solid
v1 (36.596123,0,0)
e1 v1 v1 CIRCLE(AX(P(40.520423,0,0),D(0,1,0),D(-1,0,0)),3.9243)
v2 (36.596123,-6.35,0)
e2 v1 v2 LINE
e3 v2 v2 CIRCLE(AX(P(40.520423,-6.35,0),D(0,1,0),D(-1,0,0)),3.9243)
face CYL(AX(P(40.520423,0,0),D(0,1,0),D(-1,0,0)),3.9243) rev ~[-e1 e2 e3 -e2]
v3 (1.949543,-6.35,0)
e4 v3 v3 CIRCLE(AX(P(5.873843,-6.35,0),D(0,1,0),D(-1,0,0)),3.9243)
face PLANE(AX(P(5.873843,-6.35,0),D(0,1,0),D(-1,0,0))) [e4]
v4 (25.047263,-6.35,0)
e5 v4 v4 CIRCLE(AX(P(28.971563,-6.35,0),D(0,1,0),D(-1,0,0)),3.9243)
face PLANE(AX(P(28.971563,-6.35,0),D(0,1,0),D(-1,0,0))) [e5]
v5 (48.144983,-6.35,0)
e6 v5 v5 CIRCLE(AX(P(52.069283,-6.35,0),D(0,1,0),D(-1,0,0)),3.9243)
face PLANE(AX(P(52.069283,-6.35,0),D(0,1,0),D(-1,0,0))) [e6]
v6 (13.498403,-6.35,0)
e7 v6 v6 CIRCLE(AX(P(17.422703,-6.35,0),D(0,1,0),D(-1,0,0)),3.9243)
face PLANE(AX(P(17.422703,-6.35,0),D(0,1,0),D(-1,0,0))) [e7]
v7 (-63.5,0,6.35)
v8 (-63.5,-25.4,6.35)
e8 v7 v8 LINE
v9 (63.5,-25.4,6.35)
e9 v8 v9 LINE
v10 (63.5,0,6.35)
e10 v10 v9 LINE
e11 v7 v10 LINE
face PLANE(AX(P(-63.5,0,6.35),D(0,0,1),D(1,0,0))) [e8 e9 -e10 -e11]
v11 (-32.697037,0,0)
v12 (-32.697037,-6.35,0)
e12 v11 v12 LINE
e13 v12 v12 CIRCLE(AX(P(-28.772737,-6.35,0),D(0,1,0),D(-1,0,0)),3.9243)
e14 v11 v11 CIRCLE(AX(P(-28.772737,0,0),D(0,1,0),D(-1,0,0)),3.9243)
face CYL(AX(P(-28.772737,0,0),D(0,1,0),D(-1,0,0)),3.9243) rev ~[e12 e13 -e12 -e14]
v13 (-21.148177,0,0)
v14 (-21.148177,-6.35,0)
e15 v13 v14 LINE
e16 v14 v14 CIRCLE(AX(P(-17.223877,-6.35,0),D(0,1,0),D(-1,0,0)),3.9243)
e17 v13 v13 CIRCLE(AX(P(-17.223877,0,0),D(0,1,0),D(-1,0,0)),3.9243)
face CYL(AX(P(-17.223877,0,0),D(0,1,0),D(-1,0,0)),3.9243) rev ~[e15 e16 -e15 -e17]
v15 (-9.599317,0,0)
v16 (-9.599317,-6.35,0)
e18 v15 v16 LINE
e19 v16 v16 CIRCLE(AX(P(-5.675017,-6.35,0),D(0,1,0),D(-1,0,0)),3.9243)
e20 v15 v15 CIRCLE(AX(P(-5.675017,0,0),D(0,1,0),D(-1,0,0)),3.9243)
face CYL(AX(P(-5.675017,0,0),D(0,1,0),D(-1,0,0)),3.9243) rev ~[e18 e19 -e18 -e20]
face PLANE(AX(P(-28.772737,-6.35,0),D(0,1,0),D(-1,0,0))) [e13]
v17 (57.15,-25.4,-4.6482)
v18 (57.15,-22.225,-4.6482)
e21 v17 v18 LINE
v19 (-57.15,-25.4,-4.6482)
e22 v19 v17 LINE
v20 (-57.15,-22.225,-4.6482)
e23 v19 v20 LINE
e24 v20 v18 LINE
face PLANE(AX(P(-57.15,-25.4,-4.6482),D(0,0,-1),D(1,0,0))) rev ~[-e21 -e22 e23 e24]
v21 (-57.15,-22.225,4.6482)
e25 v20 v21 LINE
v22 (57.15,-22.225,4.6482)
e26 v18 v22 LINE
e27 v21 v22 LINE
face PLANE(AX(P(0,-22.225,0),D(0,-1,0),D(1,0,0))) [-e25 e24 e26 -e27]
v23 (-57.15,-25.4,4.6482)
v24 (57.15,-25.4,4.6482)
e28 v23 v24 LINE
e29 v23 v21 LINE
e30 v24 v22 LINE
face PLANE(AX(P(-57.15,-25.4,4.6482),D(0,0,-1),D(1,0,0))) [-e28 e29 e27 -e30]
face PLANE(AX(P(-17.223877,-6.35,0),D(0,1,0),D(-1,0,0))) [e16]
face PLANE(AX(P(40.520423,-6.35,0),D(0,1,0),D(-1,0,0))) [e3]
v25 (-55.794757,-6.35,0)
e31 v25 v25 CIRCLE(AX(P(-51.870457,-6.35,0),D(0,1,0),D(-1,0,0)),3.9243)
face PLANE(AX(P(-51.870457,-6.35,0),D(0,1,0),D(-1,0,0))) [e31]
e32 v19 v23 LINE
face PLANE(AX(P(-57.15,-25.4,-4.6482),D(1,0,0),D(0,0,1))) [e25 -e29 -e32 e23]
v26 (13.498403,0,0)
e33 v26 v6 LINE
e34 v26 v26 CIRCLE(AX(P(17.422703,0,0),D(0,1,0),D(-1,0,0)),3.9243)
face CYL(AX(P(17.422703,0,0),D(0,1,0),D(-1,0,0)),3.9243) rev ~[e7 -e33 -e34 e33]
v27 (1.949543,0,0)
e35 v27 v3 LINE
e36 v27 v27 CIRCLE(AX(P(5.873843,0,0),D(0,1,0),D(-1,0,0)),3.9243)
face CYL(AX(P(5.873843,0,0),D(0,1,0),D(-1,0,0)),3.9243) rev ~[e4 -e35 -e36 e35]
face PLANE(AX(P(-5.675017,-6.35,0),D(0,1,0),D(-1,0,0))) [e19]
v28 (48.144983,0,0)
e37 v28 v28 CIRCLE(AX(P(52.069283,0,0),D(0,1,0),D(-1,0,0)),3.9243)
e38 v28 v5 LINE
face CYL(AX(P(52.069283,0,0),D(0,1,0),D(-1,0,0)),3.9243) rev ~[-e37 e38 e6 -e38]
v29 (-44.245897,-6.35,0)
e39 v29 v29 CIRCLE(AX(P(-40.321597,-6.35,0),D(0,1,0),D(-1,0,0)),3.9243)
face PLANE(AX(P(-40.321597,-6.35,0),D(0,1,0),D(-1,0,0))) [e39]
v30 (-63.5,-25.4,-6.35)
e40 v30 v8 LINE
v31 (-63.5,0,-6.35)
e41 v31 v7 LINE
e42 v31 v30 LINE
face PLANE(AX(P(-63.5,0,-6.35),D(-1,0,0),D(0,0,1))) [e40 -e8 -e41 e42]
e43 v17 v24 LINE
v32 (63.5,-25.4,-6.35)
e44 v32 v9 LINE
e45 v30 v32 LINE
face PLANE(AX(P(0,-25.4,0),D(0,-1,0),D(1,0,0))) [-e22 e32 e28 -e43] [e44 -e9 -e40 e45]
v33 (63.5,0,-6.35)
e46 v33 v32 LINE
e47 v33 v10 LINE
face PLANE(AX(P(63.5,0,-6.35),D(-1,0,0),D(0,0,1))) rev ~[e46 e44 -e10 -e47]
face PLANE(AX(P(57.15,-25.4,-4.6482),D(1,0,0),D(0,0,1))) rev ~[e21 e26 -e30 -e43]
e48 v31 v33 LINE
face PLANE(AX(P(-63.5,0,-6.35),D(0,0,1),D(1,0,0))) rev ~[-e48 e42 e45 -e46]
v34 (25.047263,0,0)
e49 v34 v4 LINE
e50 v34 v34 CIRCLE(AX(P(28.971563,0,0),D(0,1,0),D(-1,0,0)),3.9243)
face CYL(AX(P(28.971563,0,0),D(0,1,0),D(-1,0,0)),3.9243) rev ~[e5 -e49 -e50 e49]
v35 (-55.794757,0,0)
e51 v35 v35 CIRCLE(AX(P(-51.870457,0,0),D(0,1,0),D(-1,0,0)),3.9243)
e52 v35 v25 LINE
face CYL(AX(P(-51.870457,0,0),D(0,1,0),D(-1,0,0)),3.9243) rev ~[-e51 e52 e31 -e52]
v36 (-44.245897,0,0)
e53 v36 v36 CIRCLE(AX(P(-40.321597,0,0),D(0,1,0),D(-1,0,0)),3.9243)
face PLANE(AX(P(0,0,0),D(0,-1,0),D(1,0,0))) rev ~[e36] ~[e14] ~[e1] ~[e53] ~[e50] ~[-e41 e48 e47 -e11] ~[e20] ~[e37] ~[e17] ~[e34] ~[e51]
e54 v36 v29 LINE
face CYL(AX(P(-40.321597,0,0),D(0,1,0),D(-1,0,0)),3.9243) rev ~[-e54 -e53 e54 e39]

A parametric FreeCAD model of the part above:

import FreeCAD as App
import Part
import Sketcher
from FreeCAD import Vector
Q = App.Units.Quantity

doc = App.newDocument("Part")
body = doc.addObject("PartDesign::Body", "Body")

# Sketch on XZ plane
sketch1 = body.newObject("Sketcher::SketchObject", "Sketch")
sketch1.AttachmentSupport = (doc.getObject("XZ_Plane"), [""])
sketch1.MapMode = "FlatFace"
sketch1.addGeometry(Part.LineSegment(Vector(-63.5, 6.35, 0), Vector(-63.5, -6.35, 0)), False)
sketch1.addGeometry(Part.LineSegment(Vector(-63.5, -6.35, 0), Vector(63.5, -6.35, 0)), False)
sketch1.addGeometry(Part.LineSegment(Vector(63.5, -6.35, 0), Vector(63.5, 6.35, 0)), False)
sketch1.addGeometry(Part.LineSegment(Vector(63.5, 6.35, 0), Vector(-63.5, 6.35, 0)), False)
sketch1.addConstraint(Sketcher.Constraint("Coincident", 0, 2, 1, 1))
sketch1.addConstraint(Sketcher.Constraint("Coincident", 1, 2, 2, 1))
sketch1.addConstraint(Sketcher.Constraint("Coincident", 2, 2, 3, 1))
sketch1.addConstraint(Sketcher.Constraint("Coincident", 3, 2, 0, 1))
sketch1.addConstraint(Sketcher.Constraint("Vertical", 0))
sketch1.addConstraint(Sketcher.Constraint("Horizontal", 1))
sketch1.addConstraint(Sketcher.Constraint("Vertical", 2))
sketch1.addConstraint(Sketcher.Constraint("Horizontal", 3))
sketch1.addConstraint(Sketcher.Constraint("Symmetric", 0, 2, 2, 2, -1, 1))
sketch1.addConstraint(Sketcher.Constraint("DistanceX", 1, 1, 1, 2, Q("5 in")))
sketch1.addConstraint(Sketcher.Constraint("DistanceY", 0, 2, 0, 1, Q("0.5 in")))
pad1 = body.newObject("PartDesign::Pad", "Pad")
pad1.Profile = sketch1
pad1.Length = Q("1 in")

# Sketch on XZ plane
sketch2 = body.newObject("Sketcher::SketchObject", "Sketch001")
sketch2.AttachmentSupport = (doc.getObject("XZ_Plane"), [""])
sketch2.MapMode = "FlatFace"
sketch2.addGeometry(Part.Circle(Vector(-40.321597, 0, 0), Vector(0, 0, 1), 3.9243), False)
sketch2.addGeometry(Part.Circle(Vector(52.069283, 0, 0), Vector(0, 0, 1), 3.9243), False)
sketch2.addGeometry(Part.Circle(Vector(40.520423, 0, 0), Vector(0, 0, 1), 3.9243), False)
sketch2.addGeometry(Part.Circle(Vector(28.971563, 0, 0), Vector(0, 0, 1), 3.9243), False)
sketch2.addGeometry(Part.Circle(Vector(17.422703, 0, 0), Vector(0, 0, 1), 3.9243), False)
sketch2.addGeometry(Part.Circle(Vector(5.873843, 0, 0), Vector(0, 0, 1), 3.9243), False)
sketch2.addGeometry(Part.Circle(Vector(-5.675017, 0, 0), Vector(0, 0, 1), 3.9243), False)
sketch2.addGeometry(Part.Circle(Vector(-17.223877, 0, 0), Vector(0, 0, 1), 3.9243), False)
sketch2.addGeometry(Part.Circle(Vector(-28.772737, 0, 0), Vector(0, 0, 1), 3.9243), False)
sketch2.addGeometry(Part.Circle(Vector(-51.870457, 0, 0), Vector(0, 0, 1), 3.9243), False)
sketch2.addConstraint(Sketcher.Constraint("Equal", 0, 1))
sketch2.addConstraint(Sketcher.Constraint("Equal", 1, 2))
sketch2.addConstraint(Sketcher.Constraint("Equal", 2, 3))
sketch2.addConstraint(Sketcher.Constraint("Equal", 3, 4))
sketch2.addConstraint(Sketcher.Constraint("Equal", 4, 5))
sketch2.addConstraint(Sketcher.Constraint("Equal", 5, 6))
sketch2.addConstraint(Sketcher.Constraint("Equal", 6, 7))
sketch2.addConstraint(Sketcher.Constraint("Equal", 7, 8))
sketch2.addConstraint(Sketcher.Constraint("Equal", 8, 9))
sketch2.addConstraint(Sketcher.Constraint("PointOnObject", 0, 3, -1))
sketch2.addConstraint(Sketcher.Constraint("PointOnObject", 1, 3, -1))
sketch2.addConstraint(Sketcher.Constraint("PointOnObject", 2, 3, -1))
sketch2.addConstraint(Sketcher.Constraint("PointOnObject", 3, 3, -1))
sketch2.addConstraint(Sketcher.Constraint("PointOnObject", 4, 3, -1))
sketch2.addConstraint(Sketcher.Constraint("PointOnObject", 5, 3, -1))
sketch2.addConstraint(Sketcher.Constraint("PointOnObject", 6, 3, -1))
sketch2.addConstraint(Sketcher.Constraint("PointOnObject", 7, 3, -1))
sketch2.addConstraint(Sketcher.Constraint("PointOnObject", 8, 3, -1))
sketch2.addConstraint(Sketcher.Constraint("PointOnObject", 9, 3, -1))
sketch2.addConstraint(Sketcher.Constraint("Diameter", 0, Q("0.309 in")))
sketch2.addConstraint(Sketcher.Constraint("DistanceX", 0, 3, 4, 3, 57.7443))
sketch2.addConstraint(Sketcher.Constraint("DistanceX", 9, 3, 5, 3, 57.7443))
sketch2.addConstraint(Sketcher.Constraint("DistanceX", 0, 3, 1, 3, 92.39088))
sketch2.addConstraint(Sketcher.Constraint("DistanceX", 2, 3, 1, 3, 11.54886))
sketch2.addConstraint(Sketcher.Constraint("DistanceX", 3, 3, 2, 3, 11.54886))
sketch2.addConstraint(Sketcher.Constraint("DistanceX", 5, 3, 4, 3, 11.54886))
sketch2.addConstraint(Sketcher.Constraint("DistanceX", 6, 3, 5, 3, 11.54886))
sketch2.addConstraint(Sketcher.Constraint("DistanceX", 7, 3, 6, 3, 11.54886))
sketch2.addConstraint(Sketcher.Constraint("DistanceX", 0, 3, 8, 3, 11.54886))
sketch2.addConstraint(Sketcher.Constraint("DistanceX", 0, 3, -1, 1, 40.321597))
pocket1 = body.newObject("PartDesign::Pocket", "Pocket")
pocket1.Profile = sketch2
pocket1.Length = Q("0.25 in")
pocket1.Reversed = True

# Sketch on XZ plane
sketch3 = body.newObject("Sketcher::SketchObject", "Sketch002")
sketch3.AttachmentSupport = (doc.getObject("XZ_Plane"), [""])
sketch3.MapMode = "FlatFace"
sketch3.AttachmentOffset = App.Placement(Vector(0, 0, 1 * 25.4), App.Rotation())
sketch3.addGeometry(Part.LineSegment(Vector(-57.15, 4.6482, 0), Vector(-57.15, -4.6482, 0)), False)
sketch3.addGeometry(Part.LineSegment(Vector(-57.15, -4.6482, 0), Vector(57.15, -4.6482, 0)), False)
sketch3.addGeometry(Part.LineSegment(Vector(57.15, -4.6482, 0), Vector(57.15, 4.6482, 0)), False)
sketch3.addGeometry(Part.LineSegment(Vector(57.15, 4.6482, 0), Vector(-57.15, 4.6482, 0)), False)
sketch3.addConstraint(Sketcher.Constraint("Coincident", 0, 2, 1, 1))
sketch3.addConstraint(Sketcher.Constraint("Coincident", 1, 2, 2, 1))
sketch3.addConstraint(Sketcher.Constraint("Coincident", 2, 2, 3, 1))
sketch3.addConstraint(Sketcher.Constraint("Coincident", 3, 2, 0, 1))
sketch3.addConstraint(Sketcher.Constraint("Vertical", 0))
sketch3.addConstraint(Sketcher.Constraint("Horizontal", 1))
sketch3.addConstraint(Sketcher.Constraint("Vertical", 2))
sketch3.addConstraint(Sketcher.Constraint("Horizontal", 3))
sketch3.addConstraint(Sketcher.Constraint("Symmetric", 0, 2, 2, 2, -1, 1))
sketch3.addConstraint(Sketcher.Constraint("DistanceX", 1, 1, 1, 2, Q("4.5 in")))
sketch3.addConstraint(Sketcher.Constraint("DistanceY", 0, 2, 0, 1, Q("0.366 in")))
pocket2 = body.newObject("PartDesign::Pocket", "Pocket001")
pocket2.Profile = sketch3
pocket2.Length = Q("0.125 in")

doc.recompute()
